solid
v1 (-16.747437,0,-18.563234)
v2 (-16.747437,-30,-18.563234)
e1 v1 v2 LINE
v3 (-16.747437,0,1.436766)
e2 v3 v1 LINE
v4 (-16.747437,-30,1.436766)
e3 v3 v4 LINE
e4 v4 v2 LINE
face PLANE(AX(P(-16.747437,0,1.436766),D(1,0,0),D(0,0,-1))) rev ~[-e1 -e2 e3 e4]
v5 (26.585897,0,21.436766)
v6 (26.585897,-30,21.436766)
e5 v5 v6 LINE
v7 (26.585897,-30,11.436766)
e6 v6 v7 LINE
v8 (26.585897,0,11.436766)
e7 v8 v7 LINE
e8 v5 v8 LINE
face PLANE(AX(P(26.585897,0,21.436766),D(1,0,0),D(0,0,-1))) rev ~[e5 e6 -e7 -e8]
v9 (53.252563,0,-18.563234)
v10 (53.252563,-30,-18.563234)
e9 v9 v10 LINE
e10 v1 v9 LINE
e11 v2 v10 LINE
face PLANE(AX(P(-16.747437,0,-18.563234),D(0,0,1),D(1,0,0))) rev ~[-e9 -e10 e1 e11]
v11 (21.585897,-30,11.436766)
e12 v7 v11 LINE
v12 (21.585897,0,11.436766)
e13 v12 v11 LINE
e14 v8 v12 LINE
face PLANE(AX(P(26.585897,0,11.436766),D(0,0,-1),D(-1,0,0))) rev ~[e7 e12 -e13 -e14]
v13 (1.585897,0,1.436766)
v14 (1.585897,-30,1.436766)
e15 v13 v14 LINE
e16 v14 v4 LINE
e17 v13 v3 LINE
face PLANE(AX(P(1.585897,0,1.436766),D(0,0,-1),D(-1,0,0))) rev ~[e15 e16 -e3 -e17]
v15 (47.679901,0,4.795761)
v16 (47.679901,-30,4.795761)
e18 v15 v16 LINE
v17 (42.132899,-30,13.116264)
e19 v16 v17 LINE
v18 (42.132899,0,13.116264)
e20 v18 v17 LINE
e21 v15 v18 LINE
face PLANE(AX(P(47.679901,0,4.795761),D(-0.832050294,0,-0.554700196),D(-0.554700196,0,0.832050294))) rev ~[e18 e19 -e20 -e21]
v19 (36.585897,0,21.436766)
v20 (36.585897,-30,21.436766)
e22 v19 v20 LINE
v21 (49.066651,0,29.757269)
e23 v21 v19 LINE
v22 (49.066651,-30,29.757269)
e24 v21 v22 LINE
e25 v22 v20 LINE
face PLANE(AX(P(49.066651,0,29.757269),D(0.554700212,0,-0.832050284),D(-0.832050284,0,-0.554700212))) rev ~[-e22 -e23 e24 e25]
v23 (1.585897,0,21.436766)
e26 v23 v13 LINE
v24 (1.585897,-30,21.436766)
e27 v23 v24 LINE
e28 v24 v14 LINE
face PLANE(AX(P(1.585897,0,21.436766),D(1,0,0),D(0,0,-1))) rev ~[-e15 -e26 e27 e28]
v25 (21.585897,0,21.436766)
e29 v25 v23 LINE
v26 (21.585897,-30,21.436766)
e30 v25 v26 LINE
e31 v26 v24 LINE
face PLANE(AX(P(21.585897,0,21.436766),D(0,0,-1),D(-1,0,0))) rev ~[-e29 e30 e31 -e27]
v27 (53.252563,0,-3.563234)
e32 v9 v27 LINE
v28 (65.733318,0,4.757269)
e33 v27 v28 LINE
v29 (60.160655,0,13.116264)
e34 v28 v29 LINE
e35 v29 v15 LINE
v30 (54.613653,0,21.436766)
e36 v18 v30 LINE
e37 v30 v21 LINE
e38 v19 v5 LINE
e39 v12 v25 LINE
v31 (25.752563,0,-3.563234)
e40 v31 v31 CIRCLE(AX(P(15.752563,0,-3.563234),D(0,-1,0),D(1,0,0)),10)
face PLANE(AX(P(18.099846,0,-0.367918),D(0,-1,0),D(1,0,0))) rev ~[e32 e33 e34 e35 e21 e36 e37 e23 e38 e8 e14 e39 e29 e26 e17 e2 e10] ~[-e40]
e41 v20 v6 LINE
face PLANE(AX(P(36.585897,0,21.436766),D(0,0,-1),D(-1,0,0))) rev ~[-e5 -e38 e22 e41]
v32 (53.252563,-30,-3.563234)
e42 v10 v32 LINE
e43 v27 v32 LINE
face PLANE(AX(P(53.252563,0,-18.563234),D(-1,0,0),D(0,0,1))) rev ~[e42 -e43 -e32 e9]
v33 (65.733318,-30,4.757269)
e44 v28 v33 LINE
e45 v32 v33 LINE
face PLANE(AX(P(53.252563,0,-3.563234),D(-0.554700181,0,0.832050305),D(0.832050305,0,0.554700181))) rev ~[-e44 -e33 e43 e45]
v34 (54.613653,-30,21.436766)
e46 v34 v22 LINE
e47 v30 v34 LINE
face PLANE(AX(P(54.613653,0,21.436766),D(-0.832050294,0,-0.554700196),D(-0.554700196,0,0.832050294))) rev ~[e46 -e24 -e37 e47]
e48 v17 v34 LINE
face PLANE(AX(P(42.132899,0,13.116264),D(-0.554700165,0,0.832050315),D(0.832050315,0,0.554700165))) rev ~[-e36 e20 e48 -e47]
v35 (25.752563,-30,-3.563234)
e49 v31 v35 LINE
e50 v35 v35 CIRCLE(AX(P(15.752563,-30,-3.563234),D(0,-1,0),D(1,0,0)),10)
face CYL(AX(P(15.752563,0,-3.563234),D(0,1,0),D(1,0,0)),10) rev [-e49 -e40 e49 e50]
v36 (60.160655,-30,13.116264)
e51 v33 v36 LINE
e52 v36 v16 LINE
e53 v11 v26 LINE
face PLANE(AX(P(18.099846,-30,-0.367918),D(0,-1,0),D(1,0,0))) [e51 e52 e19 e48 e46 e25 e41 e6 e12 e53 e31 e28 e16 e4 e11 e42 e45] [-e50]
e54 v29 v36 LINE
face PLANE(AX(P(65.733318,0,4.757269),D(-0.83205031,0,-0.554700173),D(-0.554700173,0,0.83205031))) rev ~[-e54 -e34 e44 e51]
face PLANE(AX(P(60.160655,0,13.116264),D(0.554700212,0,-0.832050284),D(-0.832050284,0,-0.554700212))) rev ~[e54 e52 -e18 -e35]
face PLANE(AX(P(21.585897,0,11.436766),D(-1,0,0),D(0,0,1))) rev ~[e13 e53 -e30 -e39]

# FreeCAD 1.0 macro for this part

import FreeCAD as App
import Part
import Sketcher
from FreeCAD import Vector
Q = App.Units.Quantity


def add_polygon(sketch, points):
    """Adds a closed chain of lines whose ends are joined by coincident constraints."""
    first, n = sketch.GeometryCount, len(points)
    for a, b in zip(points, points[1:] + points[:1]):
        sketch.addGeometry(Part.LineSegment(App.Vector(*a, 0), App.Vector(*b, 0)), False)
    for i in range(n):
        sketch.addConstraint(Sketcher.Constraint("Coincident", first + i, 2, first + (i + 1) % n, 1))

doc = App.newDocument("Part")
body = doc.addObject("PartDesign::Body", "Body")

# Sketch on XZ plane
sketch1 = body.newObject("Sketcher::SketchObject", "Sketch")
sketch1.AttachmentSupport = (doc.getObject("XZ_Plane"), [""])
sketch1.MapMode = "FlatFace"
add_polygon(sketch1, [(22, 21), (2, 21), (2, 1), (-17, 1), (-17, -19), (53, -19), (53, -4), (66, 5), (60, 13), (48, 5), (42, 13), (55, 21), (49, 30), (37, 21), (27, 21), (27, 11), (22, 11)])  # lines 0-16
sketch1.addGeometry(Part.Circle(Vector(16, -4, 0), Vector(0, 0, 1), 10), False)  # 17
sketch1.addConstraint([
    Sketcher.Constraint("Horizontal", 0),
    Sketcher.Constraint("Vertical", 1),
    Sketcher.Constraint("Horizontal", 2),
    Sketcher.Constraint("Vertical", 3),
    Sketcher.Constraint("Horizontal", 4),
    Sketcher.Constraint("Vertical", 5),
    Sketcher.Constraint("Horizontal", 13),
    Sketcher.Constraint("Vertical", 14),
    Sketcher.Constraint("Horizontal", 15),
    Sketcher.Constraint("Vertical", 16),
    Sketcher.Constraint("Perpendicular", 6, 7),
    Sketcher.Constraint("Perpendicular", 7, 8),
    Sketcher.Constraint("Perpendicular", 8, 9),
    Sketcher.Constraint("Perpendicular", 9, 10),
    Sketcher.Constraint("Perpendicular", 10, 11),
    Sketcher.Constraint("Perpendicular", 11, 12),
    Sketcher.Constraint("Horizontal", 17, 3, 5, 2),
    Sketcher.Constraint("Horizontal", 7, 2, 9, 2),
    Sketcher.Constraint("Horizontal", 0, 2, 10, 2),
    Sketcher.Constraint("Horizontal", 10, 2, 12, 2),
    Sketcher.Constraint("Equal", 0, 1),
    Sketcher.Constraint("Equal", 1, 3),
    Sketcher.Constraint("Equal", 13, 14),
    Sketcher.Constraint("Equal", 6, 8),
    Sketcher.Constraint("Equal", 8, 10),
    Sketcher.Constraint("Equal", 9, 11),
    Sketcher.Constraint("Diameter", 17, Q("20 mm")),
    Sketcher.Constraint("DistanceX", 0, 2, 0, 1, Q("20 mm")),
    Sketcher.Constraint("DistanceX", 4, 1, 4, 2, Q("70 mm")),
    Sketcher.Constraint("DistanceX", 13, 2, 13, 1, Q("10 mm")),
    Sketcher.Constraint("DistanceX", 15, 2, 15, 1, Q("5 mm")),
    Sketcher.Constraint("DistanceY", 5, 1, 5, 2, Q("15 mm")),
    Sketcher.Constraint("Distance", 6, Q("15.000001 mm")),
    Sketcher.Constraint("Distance", 9, Q("10 mm")),
    Sketcher.Constraint("DistanceX", 2, 2, 17, 3, Q("32.5 mm")),
    Sketcher.Constraint("DistanceX", -1, 1, 8, 2, Q("47.679901 mm")),
    Sketcher.Constraint("DistanceY", -1, 1, 6, 2, Q("4.757269 mm")),
])
pad1 = body.newObject("PartDesign::Pad", "Pad")
pad1.Profile = sketch1
pad1.Length = 30

doc.recompute()
